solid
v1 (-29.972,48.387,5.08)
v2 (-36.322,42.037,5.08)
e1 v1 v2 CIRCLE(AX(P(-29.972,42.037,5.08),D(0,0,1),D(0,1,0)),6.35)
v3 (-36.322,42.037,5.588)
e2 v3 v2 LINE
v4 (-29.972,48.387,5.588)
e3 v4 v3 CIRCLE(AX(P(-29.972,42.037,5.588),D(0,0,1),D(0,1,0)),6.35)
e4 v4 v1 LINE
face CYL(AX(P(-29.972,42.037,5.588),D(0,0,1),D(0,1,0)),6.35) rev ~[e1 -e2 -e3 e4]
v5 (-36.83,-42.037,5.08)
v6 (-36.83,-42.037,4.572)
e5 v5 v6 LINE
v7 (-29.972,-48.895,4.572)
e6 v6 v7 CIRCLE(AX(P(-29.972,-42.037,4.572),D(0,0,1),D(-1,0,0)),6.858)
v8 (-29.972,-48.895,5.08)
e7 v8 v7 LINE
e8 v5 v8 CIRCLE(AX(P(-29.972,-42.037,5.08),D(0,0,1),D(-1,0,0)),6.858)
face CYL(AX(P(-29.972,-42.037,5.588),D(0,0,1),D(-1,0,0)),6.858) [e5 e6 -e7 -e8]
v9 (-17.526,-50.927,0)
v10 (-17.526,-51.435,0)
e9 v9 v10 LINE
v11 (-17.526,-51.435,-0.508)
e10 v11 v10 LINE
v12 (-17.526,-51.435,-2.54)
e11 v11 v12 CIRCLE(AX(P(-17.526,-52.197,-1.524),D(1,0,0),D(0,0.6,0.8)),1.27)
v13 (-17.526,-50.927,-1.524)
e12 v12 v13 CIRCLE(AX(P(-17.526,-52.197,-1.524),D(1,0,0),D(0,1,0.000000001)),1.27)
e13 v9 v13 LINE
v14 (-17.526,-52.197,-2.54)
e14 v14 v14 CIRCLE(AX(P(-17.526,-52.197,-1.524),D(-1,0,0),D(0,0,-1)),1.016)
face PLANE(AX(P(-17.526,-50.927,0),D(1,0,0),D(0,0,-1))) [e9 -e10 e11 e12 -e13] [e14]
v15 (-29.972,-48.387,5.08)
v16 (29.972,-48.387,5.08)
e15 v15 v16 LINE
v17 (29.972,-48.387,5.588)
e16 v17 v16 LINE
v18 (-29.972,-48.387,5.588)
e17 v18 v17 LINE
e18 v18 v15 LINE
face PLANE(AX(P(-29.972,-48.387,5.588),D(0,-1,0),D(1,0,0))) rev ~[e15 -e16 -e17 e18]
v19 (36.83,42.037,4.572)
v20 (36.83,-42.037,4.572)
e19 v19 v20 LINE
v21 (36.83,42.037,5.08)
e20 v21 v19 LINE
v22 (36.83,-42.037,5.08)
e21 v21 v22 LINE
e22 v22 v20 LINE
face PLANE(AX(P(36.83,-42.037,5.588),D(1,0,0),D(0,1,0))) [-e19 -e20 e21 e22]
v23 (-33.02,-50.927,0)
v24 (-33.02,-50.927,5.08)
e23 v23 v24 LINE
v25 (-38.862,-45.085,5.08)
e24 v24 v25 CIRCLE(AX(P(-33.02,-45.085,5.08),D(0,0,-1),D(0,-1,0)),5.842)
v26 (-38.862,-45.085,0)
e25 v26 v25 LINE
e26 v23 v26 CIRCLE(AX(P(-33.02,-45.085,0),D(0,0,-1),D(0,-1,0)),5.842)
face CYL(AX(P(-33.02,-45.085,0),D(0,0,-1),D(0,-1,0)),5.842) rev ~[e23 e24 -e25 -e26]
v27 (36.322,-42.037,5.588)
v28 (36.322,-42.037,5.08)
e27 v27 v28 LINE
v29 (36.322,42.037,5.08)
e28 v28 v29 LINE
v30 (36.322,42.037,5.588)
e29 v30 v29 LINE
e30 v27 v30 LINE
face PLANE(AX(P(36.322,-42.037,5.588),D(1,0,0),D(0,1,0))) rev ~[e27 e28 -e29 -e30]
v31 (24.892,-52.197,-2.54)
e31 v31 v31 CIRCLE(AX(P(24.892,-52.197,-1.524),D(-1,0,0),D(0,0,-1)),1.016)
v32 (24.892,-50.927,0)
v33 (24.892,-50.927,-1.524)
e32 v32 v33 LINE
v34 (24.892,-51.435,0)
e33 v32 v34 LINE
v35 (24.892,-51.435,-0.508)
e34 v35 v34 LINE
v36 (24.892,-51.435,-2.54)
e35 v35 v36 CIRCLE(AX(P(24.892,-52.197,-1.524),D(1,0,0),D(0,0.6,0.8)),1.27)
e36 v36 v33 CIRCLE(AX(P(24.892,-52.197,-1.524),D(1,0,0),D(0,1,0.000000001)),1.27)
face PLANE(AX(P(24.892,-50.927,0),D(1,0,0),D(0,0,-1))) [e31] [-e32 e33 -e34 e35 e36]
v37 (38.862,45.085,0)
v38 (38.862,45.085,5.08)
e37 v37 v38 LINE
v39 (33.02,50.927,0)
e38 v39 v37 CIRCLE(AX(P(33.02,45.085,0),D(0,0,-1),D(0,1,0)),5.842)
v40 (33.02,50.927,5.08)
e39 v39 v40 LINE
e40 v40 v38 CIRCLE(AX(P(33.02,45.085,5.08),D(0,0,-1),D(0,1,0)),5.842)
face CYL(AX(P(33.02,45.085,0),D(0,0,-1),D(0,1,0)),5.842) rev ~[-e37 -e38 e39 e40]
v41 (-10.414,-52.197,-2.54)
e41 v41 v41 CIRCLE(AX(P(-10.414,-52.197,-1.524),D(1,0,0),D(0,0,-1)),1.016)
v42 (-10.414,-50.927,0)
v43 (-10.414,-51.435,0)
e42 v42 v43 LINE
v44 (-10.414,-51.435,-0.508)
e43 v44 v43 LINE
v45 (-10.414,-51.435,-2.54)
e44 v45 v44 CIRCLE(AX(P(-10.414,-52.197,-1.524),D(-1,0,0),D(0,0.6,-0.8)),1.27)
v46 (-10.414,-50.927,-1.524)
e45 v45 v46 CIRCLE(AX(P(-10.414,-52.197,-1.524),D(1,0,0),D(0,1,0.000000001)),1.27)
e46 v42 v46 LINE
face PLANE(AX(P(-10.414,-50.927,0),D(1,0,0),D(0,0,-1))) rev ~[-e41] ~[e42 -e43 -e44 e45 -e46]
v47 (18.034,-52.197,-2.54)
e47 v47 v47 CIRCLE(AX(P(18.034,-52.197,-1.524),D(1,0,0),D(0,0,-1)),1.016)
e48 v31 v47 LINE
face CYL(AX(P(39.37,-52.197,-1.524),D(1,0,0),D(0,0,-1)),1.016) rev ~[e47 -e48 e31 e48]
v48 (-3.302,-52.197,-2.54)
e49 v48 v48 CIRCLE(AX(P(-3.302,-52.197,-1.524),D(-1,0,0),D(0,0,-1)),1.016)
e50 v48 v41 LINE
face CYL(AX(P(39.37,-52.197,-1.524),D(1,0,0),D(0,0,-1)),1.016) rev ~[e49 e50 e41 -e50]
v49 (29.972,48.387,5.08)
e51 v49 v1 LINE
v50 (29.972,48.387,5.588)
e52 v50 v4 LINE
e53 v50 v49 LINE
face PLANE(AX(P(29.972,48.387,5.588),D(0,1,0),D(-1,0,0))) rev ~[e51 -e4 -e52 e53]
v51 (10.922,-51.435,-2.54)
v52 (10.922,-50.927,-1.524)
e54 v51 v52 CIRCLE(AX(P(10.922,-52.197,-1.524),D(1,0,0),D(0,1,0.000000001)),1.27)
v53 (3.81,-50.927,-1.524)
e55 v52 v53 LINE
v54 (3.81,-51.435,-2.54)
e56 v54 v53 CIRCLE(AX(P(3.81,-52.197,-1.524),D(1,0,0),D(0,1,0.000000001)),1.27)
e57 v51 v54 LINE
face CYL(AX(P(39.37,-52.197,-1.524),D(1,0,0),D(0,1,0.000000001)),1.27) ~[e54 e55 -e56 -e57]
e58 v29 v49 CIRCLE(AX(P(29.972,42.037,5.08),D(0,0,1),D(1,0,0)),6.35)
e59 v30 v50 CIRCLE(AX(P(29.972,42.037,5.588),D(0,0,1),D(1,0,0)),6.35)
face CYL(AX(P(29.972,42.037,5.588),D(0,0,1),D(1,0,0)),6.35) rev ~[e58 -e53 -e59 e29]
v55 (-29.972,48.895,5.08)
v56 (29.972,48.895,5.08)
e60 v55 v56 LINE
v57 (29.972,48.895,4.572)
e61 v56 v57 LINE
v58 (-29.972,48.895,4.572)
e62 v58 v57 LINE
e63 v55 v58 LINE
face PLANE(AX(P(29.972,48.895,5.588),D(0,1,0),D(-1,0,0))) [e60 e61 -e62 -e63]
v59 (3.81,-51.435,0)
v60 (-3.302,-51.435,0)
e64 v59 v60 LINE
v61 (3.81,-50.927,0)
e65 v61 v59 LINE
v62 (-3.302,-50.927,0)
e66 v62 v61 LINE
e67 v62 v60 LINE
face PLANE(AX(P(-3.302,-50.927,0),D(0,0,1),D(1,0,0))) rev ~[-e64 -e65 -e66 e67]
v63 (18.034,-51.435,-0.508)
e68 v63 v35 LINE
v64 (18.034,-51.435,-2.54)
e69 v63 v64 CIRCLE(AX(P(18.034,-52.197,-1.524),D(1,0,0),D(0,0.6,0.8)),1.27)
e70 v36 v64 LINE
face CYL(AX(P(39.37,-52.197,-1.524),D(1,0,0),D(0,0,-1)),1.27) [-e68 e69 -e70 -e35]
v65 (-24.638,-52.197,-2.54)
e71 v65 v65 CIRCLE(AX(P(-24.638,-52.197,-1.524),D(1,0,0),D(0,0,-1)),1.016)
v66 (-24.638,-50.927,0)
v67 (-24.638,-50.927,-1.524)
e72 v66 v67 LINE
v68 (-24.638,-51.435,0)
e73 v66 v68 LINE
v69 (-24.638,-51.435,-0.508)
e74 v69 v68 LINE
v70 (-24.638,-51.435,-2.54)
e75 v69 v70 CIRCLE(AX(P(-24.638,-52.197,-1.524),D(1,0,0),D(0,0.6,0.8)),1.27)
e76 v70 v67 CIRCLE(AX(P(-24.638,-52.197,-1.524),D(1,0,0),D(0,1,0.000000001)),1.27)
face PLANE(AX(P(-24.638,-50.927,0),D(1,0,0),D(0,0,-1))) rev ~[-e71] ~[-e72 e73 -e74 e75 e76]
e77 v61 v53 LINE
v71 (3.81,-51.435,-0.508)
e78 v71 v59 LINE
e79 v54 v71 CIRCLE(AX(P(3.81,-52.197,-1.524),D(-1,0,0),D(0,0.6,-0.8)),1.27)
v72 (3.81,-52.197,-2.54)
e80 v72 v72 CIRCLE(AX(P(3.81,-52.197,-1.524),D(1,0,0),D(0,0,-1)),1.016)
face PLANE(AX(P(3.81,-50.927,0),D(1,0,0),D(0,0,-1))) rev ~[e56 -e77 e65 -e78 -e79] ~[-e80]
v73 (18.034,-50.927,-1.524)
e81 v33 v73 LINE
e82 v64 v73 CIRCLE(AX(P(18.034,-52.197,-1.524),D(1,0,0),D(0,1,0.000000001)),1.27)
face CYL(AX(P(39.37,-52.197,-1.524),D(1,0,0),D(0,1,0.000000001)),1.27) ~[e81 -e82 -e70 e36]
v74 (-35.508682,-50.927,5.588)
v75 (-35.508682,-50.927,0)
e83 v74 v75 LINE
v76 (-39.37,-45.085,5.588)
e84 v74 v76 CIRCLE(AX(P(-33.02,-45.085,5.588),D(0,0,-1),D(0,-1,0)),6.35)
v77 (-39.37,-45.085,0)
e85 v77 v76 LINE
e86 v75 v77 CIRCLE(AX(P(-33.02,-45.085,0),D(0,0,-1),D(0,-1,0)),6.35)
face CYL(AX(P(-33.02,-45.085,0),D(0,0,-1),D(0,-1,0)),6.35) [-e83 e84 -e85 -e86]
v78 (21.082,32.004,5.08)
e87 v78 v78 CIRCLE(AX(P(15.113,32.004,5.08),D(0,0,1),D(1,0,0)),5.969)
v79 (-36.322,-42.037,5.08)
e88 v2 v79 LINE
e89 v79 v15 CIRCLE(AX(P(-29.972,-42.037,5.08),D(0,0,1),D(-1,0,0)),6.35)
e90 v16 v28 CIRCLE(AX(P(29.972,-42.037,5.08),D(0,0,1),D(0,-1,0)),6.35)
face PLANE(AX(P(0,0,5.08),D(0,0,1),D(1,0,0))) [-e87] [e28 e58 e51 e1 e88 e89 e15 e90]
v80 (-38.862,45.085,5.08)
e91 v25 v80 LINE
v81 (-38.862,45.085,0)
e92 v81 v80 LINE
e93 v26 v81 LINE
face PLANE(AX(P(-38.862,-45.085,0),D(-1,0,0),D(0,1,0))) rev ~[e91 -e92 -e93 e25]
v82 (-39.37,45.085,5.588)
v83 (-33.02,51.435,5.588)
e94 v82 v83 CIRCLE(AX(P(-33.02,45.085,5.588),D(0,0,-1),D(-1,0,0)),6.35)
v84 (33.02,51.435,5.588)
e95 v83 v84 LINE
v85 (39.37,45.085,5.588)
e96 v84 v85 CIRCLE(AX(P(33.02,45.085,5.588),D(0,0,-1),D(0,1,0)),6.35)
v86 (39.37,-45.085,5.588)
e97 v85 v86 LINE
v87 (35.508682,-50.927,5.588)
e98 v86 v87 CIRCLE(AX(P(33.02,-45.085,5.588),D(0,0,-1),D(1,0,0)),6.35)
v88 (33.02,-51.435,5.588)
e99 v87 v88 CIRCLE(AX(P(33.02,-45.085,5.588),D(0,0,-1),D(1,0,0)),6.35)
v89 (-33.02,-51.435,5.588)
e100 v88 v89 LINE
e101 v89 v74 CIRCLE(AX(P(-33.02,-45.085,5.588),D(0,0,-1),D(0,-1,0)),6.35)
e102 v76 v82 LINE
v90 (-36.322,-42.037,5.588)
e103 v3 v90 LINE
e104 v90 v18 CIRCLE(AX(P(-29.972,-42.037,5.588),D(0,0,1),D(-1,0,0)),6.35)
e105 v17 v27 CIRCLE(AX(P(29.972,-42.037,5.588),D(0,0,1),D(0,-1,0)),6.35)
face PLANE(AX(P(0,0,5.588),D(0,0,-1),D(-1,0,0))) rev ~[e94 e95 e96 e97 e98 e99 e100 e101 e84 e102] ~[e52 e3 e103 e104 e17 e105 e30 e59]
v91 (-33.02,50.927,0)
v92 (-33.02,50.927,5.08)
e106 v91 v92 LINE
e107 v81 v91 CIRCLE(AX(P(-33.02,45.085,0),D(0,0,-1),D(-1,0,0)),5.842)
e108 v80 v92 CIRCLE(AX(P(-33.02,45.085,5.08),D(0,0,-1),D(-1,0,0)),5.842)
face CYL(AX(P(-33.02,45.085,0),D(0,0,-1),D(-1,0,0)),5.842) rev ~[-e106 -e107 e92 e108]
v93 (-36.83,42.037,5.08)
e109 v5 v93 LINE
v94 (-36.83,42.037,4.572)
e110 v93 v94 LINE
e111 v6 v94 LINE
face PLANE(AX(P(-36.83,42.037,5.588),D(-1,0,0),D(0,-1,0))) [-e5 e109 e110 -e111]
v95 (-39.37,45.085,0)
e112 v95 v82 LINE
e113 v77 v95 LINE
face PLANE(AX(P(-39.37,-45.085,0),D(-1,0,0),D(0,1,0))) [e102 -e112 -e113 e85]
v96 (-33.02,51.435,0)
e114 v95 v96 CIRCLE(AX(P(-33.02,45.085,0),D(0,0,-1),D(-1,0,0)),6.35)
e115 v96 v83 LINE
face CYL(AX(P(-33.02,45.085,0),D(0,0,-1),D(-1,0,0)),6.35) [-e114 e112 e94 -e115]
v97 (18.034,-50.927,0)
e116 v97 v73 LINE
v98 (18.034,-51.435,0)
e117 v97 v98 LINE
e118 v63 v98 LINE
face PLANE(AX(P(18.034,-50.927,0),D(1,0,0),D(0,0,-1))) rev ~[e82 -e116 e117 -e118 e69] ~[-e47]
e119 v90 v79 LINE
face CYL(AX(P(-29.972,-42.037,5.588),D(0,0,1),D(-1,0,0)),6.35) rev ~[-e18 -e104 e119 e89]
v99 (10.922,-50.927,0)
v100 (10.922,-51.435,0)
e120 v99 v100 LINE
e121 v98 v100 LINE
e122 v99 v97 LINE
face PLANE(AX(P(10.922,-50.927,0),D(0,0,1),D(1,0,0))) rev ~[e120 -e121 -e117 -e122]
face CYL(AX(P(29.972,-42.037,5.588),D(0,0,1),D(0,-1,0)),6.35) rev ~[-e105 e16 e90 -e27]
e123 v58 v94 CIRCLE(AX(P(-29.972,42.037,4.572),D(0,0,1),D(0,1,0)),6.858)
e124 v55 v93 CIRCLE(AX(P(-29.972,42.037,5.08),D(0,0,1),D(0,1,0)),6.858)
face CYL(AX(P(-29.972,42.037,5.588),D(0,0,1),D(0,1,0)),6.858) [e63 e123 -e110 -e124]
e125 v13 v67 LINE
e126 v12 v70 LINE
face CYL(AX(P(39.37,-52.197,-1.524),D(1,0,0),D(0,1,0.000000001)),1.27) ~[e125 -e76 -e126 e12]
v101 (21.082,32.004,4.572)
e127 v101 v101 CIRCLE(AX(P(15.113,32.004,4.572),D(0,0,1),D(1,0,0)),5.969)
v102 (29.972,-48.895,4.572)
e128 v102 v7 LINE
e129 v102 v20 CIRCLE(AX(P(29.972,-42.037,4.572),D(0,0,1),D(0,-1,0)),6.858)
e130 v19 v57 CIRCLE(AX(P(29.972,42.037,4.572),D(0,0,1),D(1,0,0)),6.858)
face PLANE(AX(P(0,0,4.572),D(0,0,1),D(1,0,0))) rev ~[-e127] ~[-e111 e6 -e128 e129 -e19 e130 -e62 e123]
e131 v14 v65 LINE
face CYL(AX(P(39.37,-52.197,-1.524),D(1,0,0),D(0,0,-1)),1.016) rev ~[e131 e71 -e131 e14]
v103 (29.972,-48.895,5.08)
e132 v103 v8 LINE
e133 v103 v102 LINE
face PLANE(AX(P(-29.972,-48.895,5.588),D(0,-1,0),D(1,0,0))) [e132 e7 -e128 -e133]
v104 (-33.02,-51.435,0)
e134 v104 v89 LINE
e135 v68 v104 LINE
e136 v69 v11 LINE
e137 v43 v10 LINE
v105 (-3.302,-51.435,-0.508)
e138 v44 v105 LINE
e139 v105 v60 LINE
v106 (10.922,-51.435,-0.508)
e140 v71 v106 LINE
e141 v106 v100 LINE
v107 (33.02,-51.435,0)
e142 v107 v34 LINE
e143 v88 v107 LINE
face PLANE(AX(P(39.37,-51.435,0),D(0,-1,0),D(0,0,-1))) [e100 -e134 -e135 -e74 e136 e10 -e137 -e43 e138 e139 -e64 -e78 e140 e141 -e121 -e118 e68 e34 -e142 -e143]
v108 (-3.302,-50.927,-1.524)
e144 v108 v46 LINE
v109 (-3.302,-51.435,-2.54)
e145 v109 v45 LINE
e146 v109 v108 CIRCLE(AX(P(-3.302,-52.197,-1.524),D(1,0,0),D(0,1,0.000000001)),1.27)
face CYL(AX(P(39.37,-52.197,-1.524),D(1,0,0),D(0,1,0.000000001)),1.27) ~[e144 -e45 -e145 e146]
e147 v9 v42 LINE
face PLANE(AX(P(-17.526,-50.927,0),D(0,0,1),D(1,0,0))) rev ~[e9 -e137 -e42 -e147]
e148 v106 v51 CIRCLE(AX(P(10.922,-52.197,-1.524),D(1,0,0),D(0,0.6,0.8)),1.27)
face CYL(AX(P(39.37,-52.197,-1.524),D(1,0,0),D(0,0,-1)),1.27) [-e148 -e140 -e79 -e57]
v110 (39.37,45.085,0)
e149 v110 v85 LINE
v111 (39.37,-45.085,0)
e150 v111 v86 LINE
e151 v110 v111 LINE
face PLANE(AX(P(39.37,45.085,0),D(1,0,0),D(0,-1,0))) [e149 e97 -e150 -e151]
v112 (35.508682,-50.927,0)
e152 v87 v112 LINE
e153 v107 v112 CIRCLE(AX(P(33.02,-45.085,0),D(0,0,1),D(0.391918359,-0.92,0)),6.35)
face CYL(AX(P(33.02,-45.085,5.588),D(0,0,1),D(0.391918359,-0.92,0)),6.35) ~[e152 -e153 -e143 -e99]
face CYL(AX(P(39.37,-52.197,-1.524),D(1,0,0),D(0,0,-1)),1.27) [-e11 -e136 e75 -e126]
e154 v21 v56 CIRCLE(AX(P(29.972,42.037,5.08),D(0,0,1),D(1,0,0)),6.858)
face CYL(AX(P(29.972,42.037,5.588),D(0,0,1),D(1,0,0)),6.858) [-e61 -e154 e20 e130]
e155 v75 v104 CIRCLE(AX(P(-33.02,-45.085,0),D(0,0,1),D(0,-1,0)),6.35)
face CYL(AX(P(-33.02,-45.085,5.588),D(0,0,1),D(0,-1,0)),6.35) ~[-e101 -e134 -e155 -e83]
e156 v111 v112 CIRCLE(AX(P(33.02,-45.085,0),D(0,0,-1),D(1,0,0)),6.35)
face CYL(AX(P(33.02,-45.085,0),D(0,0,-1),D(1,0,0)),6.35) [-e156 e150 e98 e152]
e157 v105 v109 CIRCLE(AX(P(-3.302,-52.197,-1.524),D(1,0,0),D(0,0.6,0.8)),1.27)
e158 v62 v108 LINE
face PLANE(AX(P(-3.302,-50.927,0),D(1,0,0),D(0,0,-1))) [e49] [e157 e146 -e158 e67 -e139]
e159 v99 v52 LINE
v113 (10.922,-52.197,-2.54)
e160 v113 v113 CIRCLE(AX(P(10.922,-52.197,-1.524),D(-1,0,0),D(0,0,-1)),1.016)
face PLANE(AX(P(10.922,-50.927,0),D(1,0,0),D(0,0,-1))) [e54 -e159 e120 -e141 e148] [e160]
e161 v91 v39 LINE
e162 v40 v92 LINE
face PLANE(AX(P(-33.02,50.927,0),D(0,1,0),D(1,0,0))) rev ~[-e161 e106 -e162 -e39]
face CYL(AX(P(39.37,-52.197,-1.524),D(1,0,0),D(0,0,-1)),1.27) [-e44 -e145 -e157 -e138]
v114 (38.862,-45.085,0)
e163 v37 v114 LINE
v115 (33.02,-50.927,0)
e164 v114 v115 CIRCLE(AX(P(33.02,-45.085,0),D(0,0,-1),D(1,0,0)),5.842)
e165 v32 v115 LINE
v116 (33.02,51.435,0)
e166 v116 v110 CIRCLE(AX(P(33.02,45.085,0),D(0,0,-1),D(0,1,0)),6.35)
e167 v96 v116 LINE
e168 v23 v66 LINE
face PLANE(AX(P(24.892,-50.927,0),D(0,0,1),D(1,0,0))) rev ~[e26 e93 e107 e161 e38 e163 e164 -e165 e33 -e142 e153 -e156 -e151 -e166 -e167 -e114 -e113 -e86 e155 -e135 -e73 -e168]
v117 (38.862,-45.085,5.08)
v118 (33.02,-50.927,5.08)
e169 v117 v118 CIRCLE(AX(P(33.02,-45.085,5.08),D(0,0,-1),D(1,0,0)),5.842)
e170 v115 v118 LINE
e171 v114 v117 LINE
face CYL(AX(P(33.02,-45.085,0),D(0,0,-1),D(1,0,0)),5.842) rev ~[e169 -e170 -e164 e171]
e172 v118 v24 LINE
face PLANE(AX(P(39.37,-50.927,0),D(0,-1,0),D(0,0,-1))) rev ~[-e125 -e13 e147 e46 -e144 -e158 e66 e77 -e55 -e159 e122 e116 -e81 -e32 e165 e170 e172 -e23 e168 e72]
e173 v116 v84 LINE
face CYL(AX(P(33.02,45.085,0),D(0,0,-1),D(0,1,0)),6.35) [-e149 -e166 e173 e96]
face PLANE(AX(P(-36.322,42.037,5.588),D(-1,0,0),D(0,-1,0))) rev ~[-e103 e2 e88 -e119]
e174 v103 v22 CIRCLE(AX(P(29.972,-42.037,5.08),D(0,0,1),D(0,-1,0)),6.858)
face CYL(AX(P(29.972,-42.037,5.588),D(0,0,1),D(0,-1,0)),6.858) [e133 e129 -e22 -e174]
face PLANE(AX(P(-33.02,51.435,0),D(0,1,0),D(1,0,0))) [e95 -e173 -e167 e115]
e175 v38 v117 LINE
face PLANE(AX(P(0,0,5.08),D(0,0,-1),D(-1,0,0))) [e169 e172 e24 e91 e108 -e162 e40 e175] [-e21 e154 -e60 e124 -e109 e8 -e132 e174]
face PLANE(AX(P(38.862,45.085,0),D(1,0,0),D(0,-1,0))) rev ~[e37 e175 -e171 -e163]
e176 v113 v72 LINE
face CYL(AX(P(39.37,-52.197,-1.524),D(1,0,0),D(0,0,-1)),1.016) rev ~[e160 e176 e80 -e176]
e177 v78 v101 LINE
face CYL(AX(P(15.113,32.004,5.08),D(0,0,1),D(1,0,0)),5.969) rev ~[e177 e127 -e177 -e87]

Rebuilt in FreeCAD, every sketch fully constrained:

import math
import FreeCAD as App
import Part
import Sketcher
Q = App.Units.Quantity


def faces_at(feature, points):
    """Names of the faces that lie closest to the given points."""
    faces = feature.Shape.Faces
    near = lambda p: min(range(len(faces)), key=lambda i: faces[i].distToShape(Part.Vertex(*p))[0])
    return sorted({f"Face{near(p) + 1}" for p in points})

doc = App.newDocument("Part")
body = doc.addObject("PartDesign::Body", "Body")

sketch1 = doc.addObject("Sketcher::SketchObject", "Sketch")
body.addObject(sketch1)
sketch1.AttachmentSupport = (doc.XY_Plane, [""])
sketch1.MapMode = "FlatFace"
sketch1.addGeometry(Part.LineSegment(App.Vector(33, 51, 0), App.Vector(-33, 51, 0)), False)
sketch1.addGeometry(Part.ArcOfCircle(Part.Circle(App.Vector(-33, 45, 0), App.Vector(0, 0, 1), 6), math.radians(90), math.radians(180)), False)
sketch1.addGeometry(Part.LineSegment(App.Vector(-39, 45, 0), App.Vector(-39, -45, 0)), False)
sketch1.addGeometry(Part.ArcOfCircle(Part.Circle(App.Vector(-33, -45, 0), App.Vector(0, 0, 1), 6), math.radians(180), math.radians(270)), False)
sketch1.addGeometry(Part.LineSegment(App.Vector(-33, -51, 0), App.Vector(33, -51, 0)), False)
sketch1.addGeometry(Part.ArcOfCircle(Part.Circle(App.Vector(33, -45, 0), App.Vector(0, 0, 1), 6), math.radians(-90), math.radians(0)), False)
sketch1.addGeometry(Part.LineSegment(App.Vector(39, -45, 0), App.Vector(39, 45, 0)), False)
sketch1.addGeometry(Part.ArcOfCircle(Part.Circle(App.Vector(33, 45, 0), App.Vector(0, 0, 1), 6), math.radians(0), math.radians(90)), False)
sketch1.addConstraint(Sketcher.Constraint("Tangent", 0, 2, 1, 1))
sketch1.addConstraint(Sketcher.Constraint("Tangent", 1, 2, 2, 1))
sketch1.addConstraint(Sketcher.Constraint("Tangent", 2, 2, 3, 1))
sketch1.addConstraint(Sketcher.Constraint("Tangent", 3, 2, 4, 1))
sketch1.addConstraint(Sketcher.Constraint("Tangent", 4, 2, 5, 1))
sketch1.addConstraint(Sketcher.Constraint("Tangent", 5, 2, 6, 1))
sketch1.addConstraint(Sketcher.Constraint("Tangent", 6, 2, 7, 1))
sketch1.addConstraint(Sketcher.Constraint("Tangent", 7, 2, 0, 1))
sketch1.addConstraint(Sketcher.Constraint("Horizontal", 0))
sketch1.addConstraint(Sketcher.Constraint("Vertical", 2))
sketch1.addConstraint(Sketcher.Constraint("Horizontal", 4))
sketch1.addConstraint(Sketcher.Constraint("Vertical", 6))
sketch1.addConstraint(Sketcher.Constraint("Equal", 1, 3))
sketch1.addConstraint(Sketcher.Constraint("Equal", 3, 5))
sketch1.addConstraint(Sketcher.Constraint("Equal", 5, 7))
sketch1.addConstraint(Sketcher.Constraint("Symmetric", 1, 3, 5, 3, -1, 1))
sketch1.addConstraint(Sketcher.Constraint("Radius", 1, Q("0.25 in")))
sketch1.addConstraint(Sketcher.Constraint("DistanceX", 0, 2, 0, 1, Q("2.6 in")))
sketch1.addConstraint(Sketcher.Constraint("DistanceY", 2, 2, 2, 1, Q("3.55 in")))
pad1 = doc.addObject("PartDesign::Pad", "Pad")
body.addObject(pad1)
pad1.Profile = sketch1
pad1.Length = Q("0.22 in")

sketch2 = doc.addObject("Sketcher::SketchObject", "Sketch001")
body.addObject(sketch2)
sketch2.AttachmentSupport = (doc.XY_Plane, [""])
sketch2.MapMode = "FlatFace"
sketch2.AttachmentOffset = App.Placement(App.Vector(0, 0, 0.22 * 25.4), App.Rotation())
sketch2.addGeometry(Part.LineSegment(App.Vector(-30, -48, 0), App.Vector(30, -48, 0)), False)
sketch2.addGeometry(Part.ArcOfCircle(Part.Circle(App.Vector(30, -42, 0), App.Vector(0, 0, 1), 6), math.radians(-90), math.radians(0)), False)
sketch2.addGeometry(Part.LineSegment(App.Vector(36, -42, 0), App.Vector(36, 42, 0)), False)
sketch2.addGeometry(Part.ArcOfCircle(Part.Circle(App.Vector(30, 42, 0), App.Vector(0, 0, 1), 6), math.radians(0), math.radians(90)), False)
sketch2.addGeometry(Part.LineSegment(App.Vector(30, 48, 0), App.Vector(-30, 48, 0)), False)
sketch2.addGeometry(Part.ArcOfCircle(Part.Circle(App.Vector(-30, 42, 0), App.Vector(0, 0, 1), 6), math.radians(90), math.radians(180)), False)
sketch2.addGeometry(Part.LineSegment(App.Vector(-36, 42, 0), App.Vector(-36, -42, 0)), False)
sketch2.addGeometry(Part.ArcOfCircle(Part.Circle(App.Vector(-30, -42, 0), App.Vector(0, 0, 1), 6), math.radians(180), math.radians(270)), False)
sketch2.addConstraint(Sketcher.Constraint("Tangent", 0, 2, 1, 1))
sketch2.addConstraint(Sketcher.Constraint("Tangent", 1, 2, 2, 1))
sketch2.addConstraint(Sketcher.Constraint("Tangent", 2, 2, 3, 1))
sketch2.addConstraint(Sketcher.Constraint("Tangent", 3, 2, 4, 1))
sketch2.addConstraint(Sketcher.Constraint("Tangent", 4, 2, 5, 1))
sketch2.addConstraint(Sketcher.Constraint("Tangent", 5, 2, 6, 1))
sketch2.addConstraint(Sketcher.Constraint("Tangent", 6, 2, 7, 1))
sketch2.addConstraint(Sketcher.Constraint("Tangent", 7, 2, 0, 1))
sketch2.addConstraint(Sketcher.Constraint("Horizontal", 0))
sketch2.addConstraint(Sketcher.Constraint("Vertical", 2))
sketch2.addConstraint(Sketcher.Constraint("Horizontal", 4))
sketch2.addConstraint(Sketcher.Constraint("Vertical", 6))
sketch2.addConstraint(Sketcher.Constraint("Equal", 1, 3))
sketch2.addConstraint(Sketcher.Constraint("Equal", 3, 5))
sketch2.addConstraint(Sketcher.Constraint("Equal", 5, 7))
sketch2.addConstraint(Sketcher.Constraint("Symmetric", 1, 3, 5, 3, -1, 1))
sketch2.addConstraint(Sketcher.Constraint("Radius", 1, Q("0.25 in")))
sketch2.addConstraint(Sketcher.Constraint("DistanceX", 0, 1, 0, 2, Q("2.36 in")))
sketch2.addConstraint(Sketcher.Constraint("DistanceY", 2, 1, 2, 2, Q("3.31 in")))
pocket1 = doc.addObject("PartDesign::Pocket", "Pocket")
body.addObject(pocket1)
pocket1.Profile = sketch2
pocket1.Length = Q("0.02 in")
doc.recompute()

thickness = doc.addObject("PartDesign::Thickness", "Thickness")
body.addObject(thickness)
thickness.Base = (pocket1, faces_at(pocket1, [(0, 0, 0)]))
thickness.Value = Q("0.02 in")
thickness.Reversed = True
thickness.Join = "Intersection"

sketch3 = doc.addObject("Sketcher::SketchObject", "Sketch002")
body.addObject(sketch3)
sketch3.AttachmentSupport = (doc.XY_Plane, [""])
sketch3.MapMode = "FlatFace"
sketch3.AttachmentOffset = App.Placement(App.Vector(0, 0, 0.2 * 25.4), App.Rotation())
sketch3.addGeometry(Part.Circle(App.Vector(15, 32, 0), App.Vector(0, 0, 1), 6), False)
sketch3.addConstraint(Sketcher.Constraint("Diameter", 0, Q("0.47 in")))
sketch3.addConstraint(Sketcher.Constraint("DistanceY", -1, 1, 0, 3, Q("1.26 in")))
sketch3.addConstraint(Sketcher.Constraint("DistanceX", -1, 1, 0, 3, Q("0.595 in")))
pocket2 = doc.addObject("PartDesign::Pocket", "Pocket001")
body.addObject(pocket2)
pocket2.Profile = sketch3
pocket2.Length = Q("0.02 in")

sketch4 = doc.addObject("Sketcher::SketchObject", "Sketch003")
body.addObject(sketch4)
sketch4.AttachmentSupport = (doc.YZ_Plane, [""])
sketch4.MapMode = "FlatFace"
sketch4.AttachmentOffset = App.Placement(App.Vector(0, 0, 1.55 * 25.4), App.Rotation())
sketch4.addGeometry(Part.LineSegment(App.Vector(-50.9, 0, 0), App.Vector(-51.4, 0, 0)), False)
sketch4.addGeometry(Part.LineSegment(App.Vector(-51.4, 0, 0), App.Vector(-51.4, -2.5, 0)), False)
sketch4.addGeometry(Part.LineSegment(App.Vector(-51.4, -2.5, 0), App.Vector(-50.9, -2.5, 0)), False)
sketch4.addGeometry(Part.LineSegment(App.Vector(-50.9, -2.5, 0), App.Vector(-50.9, 0, 0)), False)
sketch4.addConstraint(Sketcher.Constraint("Coincident", 0, 2, 1, 1))
sketch4.addConstraint(Sketcher.Constraint("Coincident", 1, 2, 2, 1))
sketch4.addConstraint(Sketcher.Constraint("Coincident", 2, 2, 3, 1))
sketch4.addConstraint(Sketcher.Constraint("Coincident", 3, 2, 0, 1))
sketch4.addConstraint(Sketcher.Constraint("Horizontal", 0))
sketch4.addConstraint(Sketcher.Constraint("Vertical", 1))
sketch4.addConstraint(Sketcher.Constraint("Horizontal", 2))
sketch4.addConstraint(Sketcher.Constraint("Vertical", 3))
sketch4.addConstraint(Sketcher.Constraint("PointOnObject", 0, 2, -1))
sketch4.addConstraint(Sketcher.Constraint("DistanceY", 1, 2, 1, 1, Q("0.1 in")))
sketch4.addConstraint(Sketcher.Constraint("DistanceX", 0, 2, 0, 1, Q("0.02 in")))
sketch4.addConstraint(Sketcher.Constraint("DistanceX", 0, 2, -1, 1, Q("2.025 in")))
pad2 = doc.addObject("PartDesign::Pad", "Pad001")
body.addObject(pad2)
pad2.Profile = sketch4
pad2.Length = Q("3.02 in")
pad2.Reversed = True

sketch5 = doc.addObject("Sketcher::SketchObject", "Sketch004")
body.addObject(sketch5)
sketch5.AttachmentSupport = (doc.YZ_Plane, [""])
sketch5.MapMode = "FlatFace"
sketch5.AttachmentOffset = App.Placement(App.Vector(0, 0, 1.55 * 25.4), App.Rotation())
sketch5.addGeometry(Part.Circle(App.Vector(-52.2, -1.5, 0), App.Vector(0, 0, 1), 1.3), False)
sketch5.addConstraint(Sketcher.Constraint("Diameter", 0, Q("0.1 in")))
sketch5.addConstraint(Sketcher.Constraint("DistanceY", 0, 3, -1, 1, Q("0.06 in")))
sketch5.addConstraint(Sketcher.Constraint("DistanceX", 0, 3, -1, 1, Q("2.055 in")))
pad3 = doc.addObject("PartDesign::Pad", "Pad002")
body.addObject(pad3)
pad3.Profile = sketch5
pad3.Length = Q("3.02 in")
pad3.Reversed = True

sketch6 = doc.addObject("Sketcher::SketchObject", "Sketch005")
body.addObject(sketch6)
sketch6.AttachmentSupport = (doc.YZ_Plane, [""])
sketch6.MapMode = "FlatFace"
sketch6.AttachmentOffset = App.Placement(App.Vector(0, 0, 1.55 * 25.4), App.Rotation())
sketch6.addGeometry(Part.LineSegment(App.Vector(-50.9, -2.5, 0), App.Vector(-50.9, -1.5, 0)), False)
sketch6.addGeometry(Part.ArcOfCircle(Part.Circle(App.Vector(-52.2, -1.5, 0), App.Vector(0, 0, 1), 1.3), math.radians(-53), math.radians(0)), False)
sketch6.addGeometry(Part.LineSegment(App.Vector(-51.4, -2.5, 0), App.Vector(-50.9, -2.5, 0)), False)
sketch6.addConstraint(Sketcher.Constraint("Tangent", 0, 2, 1, 2))
sketch6.addConstraint(Sketcher.Constraint("Coincident", 1, 1, 2, 1))
sketch6.addConstraint(Sketcher.Constraint("Coincident", 2, 2, 0, 1))
sketch6.addConstraint(Sketcher.Constraint("Vertical", 0))
sketch6.addConstraint(Sketcher.Constraint("Horizontal", 2))
sketch6.addConstraint(Sketcher.Constraint("Radius", 1, Q("0.05 in")))
sketch6.addConstraint(Sketcher.Constraint("DistanceX", 2, 1, 2, 2, Q("0.02 in")))
sketch6.addConstraint(Sketcher.Constraint("DistanceY", 1, 1, -1, 1, Q("0.1 in")))
sketch6.addConstraint(Sketcher.Constraint("DistanceX", 1, 3, -1, 1, Q("2.055 in")))
pocket3 = doc.addObject("PartDesign::Pocket", "Pocket002")
body.addObject(pocket3)
pocket3.Profile = sketch6
pocket3.Type = "ThroughAll"

sketch7 = doc.addObject("Sketcher::SketchObject", "Sketch006")
body.addObject(sketch7)
sketch7.AttachmentSupport = (doc.YZ_Plane, [""])
sketch7.MapMode = "FlatFace"
sketch7.AttachmentOffset = App.Placement(App.Vector(0, 0, 1.55 * 25.4), App.Rotation())
sketch7.addGeometry(Part.Circle(App.Vector(-52.2, -1.5, 0), App.Vector(0, 0, 1), 1), False)
sketch7.addConstraint(Sketcher.Constraint("Diameter", 0, Q("0.08 in")))
sketch7.addConstraint(Sketcher.Constraint("DistanceY", 0, 3, -1, 1, Q("0.06 in")))
sketch7.addConstraint(Sketcher.Constraint("DistanceX", 0, 3, -1, 1, Q("2.055 in")))
pocket4 = doc.addObject("PartDesign::Pocket", "Pocket003")
body.addObject(pocket4)
pocket4.Profile = sketch7
pocket4.Type = "ThroughAll"

sketch8 = doc.addObject("Sketcher::SketchObject", "Sketch007")
body.addObject(sketch8)
sketch8.AttachmentSupport = (doc.XY_Plane, [""])
sketch8.MapMode = "FlatFace"
sketch8.AttachmentOffset = App.Placement(App.Vector(0, 0, 0.22 * 25.4), App.Rotation())
sketch8.addGeometry(Part.LineSegment(App.Vector(-17.5, -51.4, 0), App.Vector(-17.5, -53.5, 0)), False)
sketch8.addGeometry(Part.LineSegment(App.Vector(-17.5, -53.5, 0), App.Vector(-10.4, -53.5, 0)), False)
sketch8.addGeometry(Part.LineSegment(App.Vector(-10.4, -53.5, 0), App.Vector(-10.4, -51.4, 0)), False)
sketch8.addGeometry(Part.LineSegment(App.Vector(-10.4, -51.4, 0), App.Vector(-17.5, -51.4, 0)), False)
sketch8.addGeometry(Part.LineSegment(App.Vector(-3.3, -51.4, 0), App.Vector(-3.3, -53.5, 0)), False)
sketch8.addGeometry(Part.LineSegment(App.Vector(-3.3, -53.5, 0), App.Vector(3.8, -53.5, 0)), False)
sketch8.addGeometry(Part.LineSegment(App.Vector(3.8, -53.5, 0), App.Vector(3.8, -51.4, 0)), False)
sketch8.addGeometry(Part.LineSegment(App.Vector(3.8, -51.4, 0), App.Vector(-3.3, -51.4, 0)), False)
sketch8.addGeometry(Part.LineSegment(App.Vector(10.9, -51.4, 0), App.Vector(10.9, -53.5, 0)), False)
sketch8.addGeometry(Part.LineSegment(App.Vector(10.9, -53.5, 0), App.Vector(18, -53.5, 0)), False)
sketch8.addGeometry(Part.LineSegment(App.Vector(18, -53.5, 0), App.Vector(18, -51.4, 0)), False)
sketch8.addGeometry(Part.LineSegment(App.Vector(18, -51.4, 0), App.Vector(10.9, -51.4, 0)), False)
sketch8.addGeometry(Part.LineSegment(App.Vector(39.4, -54.5, 0), App.Vector(39.4, -50.9, 0)), False)
sketch8.addGeometry(Part.LineSegment(App.Vector(39.4, -50.9, 0), App.Vector(35.5, -50.9, 0)), False)
sketch8.addGeometry(Part.ArcOfCircle(Part.Circle(App.Vector(33, -45.1, 0), App.Vector(0, 0, 1), 6.3), math.radians(-90), math.radians(-67)), False)
sketch8.addGeometry(Part.LineSegment(App.Vector(33, -51.4, 0), App.Vector(24.9, -51.4, 0)), False)
sketch8.addGeometry(Part.LineSegment(App.Vector(24.9, -51.4, 0), App.Vector(24.9, -54.5, 0)), False)
sketch8.addGeometry(Part.LineSegment(App.Vector(24.9, -54.5, 0), App.Vector(39.4, -54.5, 0)), False)
sketch8.addGeometry(Part.LineSegment(App.Vector(-37.3, -53.5, 0), App.Vector(-24.6, -53.5, 0)), False)
sketch8.addGeometry(Part.LineSegment(App.Vector(-24.6, -53.5, 0), App.Vector(-24.6, -51.4, 0)), False)
sketch8.addGeometry(Part.LineSegment(App.Vector(-24.6, -51.4, 0), App.Vector(-33, -51.4, 0)), False)
sketch8.addGeometry(Part.ArcOfCircle(Part.Circle(App.Vector(-33, -45.1, 0), App.Vector(0, 0, 1), 6.3), math.radians(-113), math.radians(-90)), False)
sketch8.addGeometry(Part.LineSegment(App.Vector(-35.5, -50.9, 0), App.Vector(-37.3, -50.9, 0)), False)
sketch8.addGeometry(Part.LineSegment(App.Vector(-37.3, -50.9, 0), App.Vector(-37.3, -53.5, 0)), False)
sketch8.addConstraint(Sketcher.Constraint("Coincident", 0, 2, 1, 1))
sketch8.addConstraint(Sketcher.Constraint("Coincident", 1, 2, 2, 1))
sketch8.addConstraint(Sketcher.Constraint("Coincident", 2, 2, 3, 1))
sketch8.addConstraint(Sketcher.Constraint("Coincident", 3, 2, 0, 1))
sketch8.addConstraint(Sketcher.Constraint("Coincident", 4, 2, 5, 1))
sketch8.addConstraint(Sketcher.Constraint("Coincident", 5, 2, 6, 1))
sketch8.addConstraint(Sketcher.Constraint("Coincident", 6, 2, 7, 1))
sketch8.addConstraint(Sketcher.Constraint("Coincident", 7, 2, 4, 1))
sketch8.addConstraint(Sketcher.Constraint("Coincident", 8, 2, 9, 1))
sketch8.addConstraint(Sketcher.Constraint("Coincident", 9, 2, 10, 1))
sketch8.addConstraint(Sketcher.Constraint("Coincident", 10, 2, 11, 1))
sketch8.addConstraint(Sketcher.Constraint("Coincident", 11, 2, 8, 1))
sketch8.addConstraint(Sketcher.Constraint("Coincident", 12, 2, 13, 1))
sketch8.addConstraint(Sketcher.Constraint("Coincident", 13, 2, 14, 2))
sketch8.addConstraint(Sketcher.Constraint("Tangent", 14, 1, 15, 1))
sketch8.addConstraint(Sketcher.Constraint("Coincident", 15, 2, 16, 1))
sketch8.addConstraint(Sketcher.Constraint("Coincident", 16, 2, 17, 1))
sketch8.addConstraint(Sketcher.Constraint("Coincident", 17, 2, 12, 1))
sketch8.addConstraint(Sketcher.Constraint("Coincident", 18, 2, 19, 1))
sketch8.addConstraint(Sketcher.Constraint("Coincident", 19, 2, 20, 1))
sketch8.addConstraint(Sketcher.Constraint("Tangent", 20, 2, 21, 2))
sketch8.addConstraint(Sketcher.Constraint("Coincident", 21, 1, 22, 1))
sketch8.addConstraint(Sketcher.Constraint("Coincident", 22, 2, 23, 1))
sketch8.addConstraint(Sketcher.Constraint("Coincident", 23, 2, 18, 1))
sketch8.addConstraint(Sketcher.Constraint("Vertical", 0))
sketch8.addConstraint(Sketcher.Constraint("Horizontal", 1))
sketch8.addConstraint(Sketcher.Constraint("Vertical", 2))
sketch8.addConstraint(Sketcher.Constraint("Horizontal", 3))
sketch8.addConstraint(Sketcher.Constraint("Vertical", 4))
sketch8.addConstraint(Sketcher.Constraint("Horizontal", 5))
sketch8.addConstraint(Sketcher.Constraint("Vertical", 6))
sketch8.addConstraint(Sketcher.Constraint("Horizontal", 7))
sketch8.addConstraint(Sketcher.Constraint("Vertical", 8))
sketch8.addConstraint(Sketcher.Constraint("Horizontal", 9))
sketch8.addConstraint(Sketcher.Constraint("Vertical", 10))
sketch8.addConstraint(Sketcher.Constraint("Horizontal", 11))
sketch8.addConstraint(Sketcher.Constraint("Vertical", 12))
sketch8.addConstraint(Sketcher.Constraint("Horizontal", 13))
sketch8.addConstraint(Sketcher.Constraint("Horizontal", 15))
sketch8.addConstraint(Sketcher.Constraint("Vertical", 16))
sketch8.addConstraint(Sketcher.Constraint("Horizontal", 17))
sketch8.addConstraint(Sketcher.Constraint("Horizontal", 18))
sketch8.addConstraint(Sketcher.Constraint("Vertical", 19))
sketch8.addConstraint(Sketcher.Constraint("Horizontal", 20))
sketch8.addConstraint(Sketcher.Constraint("Horizontal", 22))
sketch8.addConstraint(Sketcher.Constraint("Vertical", 23))
sketch8.addConstraint(Sketcher.Constraint("Equal", 14, 21))
sketch8.addConstraint(Sketcher.Constraint("Symmetric", 14, 3, 21, 3, -2))
sketch8.addConstraint(Sketcher.Constraint("Horizontal", 1, 2, 4, 2))
sketch8.addConstraint(Sketcher.Constraint("Horizontal", 3, 2, 6, 2))
sketch8.addConstraint(Sketcher.Constraint("Horizontal", 5, 2, 8, 2))
sketch8.addConstraint(Sketcher.Constraint("Horizontal", 7, 2, 10, 2))
sketch8.addConstraint(Sketcher.Constraint("Horizontal", 11, 2, 14, 1))
sketch8.addConstraint(Sketcher.Constraint("Horizontal", 9, 2, 18, 2))
sketch8.addConstraint(Sketcher.Constraint("Horizontal", 13, 2, 21, 1))
sketch8.addConstraint(Sketcher.Constraint("Equal", 3, 5))
sketch8.addConstraint(Sketcher.Constraint("Equal", 7, 9))
sketch8.addConstraint(Sketcher.Constraint("Radius", 14, Q("0.25 in")))
sketch8.addConstraint(Sketcher.Constraint("DistanceX", 18, 1, 18, 2, Q("0.5 in")))
sketch8.addConstraint(Sketcher.Constraint("DistanceY", 23, 2, 23, 1, Q("0.1 in")))
sketch8.addConstraint(Sketcher.Constraint("DistanceX", 1, 1, 1, 2, Q("0.28 in")))
sketch8.addConstraint(Sketcher.Constraint("DistanceX", 15, 2, 15, 1, Q("0.32 in")))
sketch8.addConstraint(Sketcher.Constraint("DistanceX", 17, 1, 17, 2, Q("0.57 in")))
sketch8.addConstraint(Sketcher.Constraint("DistanceX", 20, 2, 20, 1, Q("0.33 in")))
sketch8.addConstraint(Sketcher.Constraint("DistanceY", 0, 2, 0, 1, Q("0.08 in")))
sketch8.addConstraint(Sketcher.Constraint("DistanceX", -1, 1, 14, 3, Q("1.3 in")))
sketch8.addConstraint(Sketcher.Constraint("DistanceX", 0, 2, -1, 1, Q("0.69 in")))
sketch8.addConstraint(Sketcher.Constraint("DistanceX", 4, 2, -1, 1, Q("0.13 in")))
sketch8.addConstraint(Sketcher.Constraint("DistanceX", -1, 1, 8, 2, Q("0.43 in")))
sketch8.addConstraint(Sketcher.Constraint("DistanceY", 14, 3, -1, 1, Q("1.775 in")))
sketch8.addConstraint(Sketcher.Constraint("DistanceY", 12, 1, 12, 2, 3.534005))
pocket5 = doc.addObject("PartDesign::Pocket", "Pocket004")
body.addObject(pocket5)
pocket5.Profile = sketch8
pocket5.Type = "ThroughAll"

sketch9 = doc.addObject("Sketcher::SketchObject", "Sketch008")
body.addObject(sketch9)
sketch9.AttachmentSupport = (doc.XZ_Plane, [""])
sketch9.MapMode = "FlatFace"
sketch9.AttachmentOffset = App.Placement(App.Vector(0, 0, 2.005 * 25.4), App.Rotation())
sketch9.addGeometry(Part.LineSegment(App.Vector(24.9, -2.5, 0), App.Vector(24.9, 0, 0)), False)
sketch9.addGeometry(Part.LineSegment(App.Vector(24.9, 0, 0), App.Vector(35.5, 0, 0)), False)
sketch9.addGeometry(Part.LineSegment(App.Vector(35.5, 0, 0), App.Vector(35.5, -2.5, 0)), False)
sketch9.addGeometry(Part.LineSegment(App.Vector(35.5, -2.5, 0), App.Vector(24.9, -2.5, 0)), False)
sketch9.addGeometry(Part.LineSegment(App.Vector(-35.5, -2.5, 0), App.Vector(-35.5, 0, 0)), False)
sketch9.addGeometry(Part.LineSegment(App.Vector(-35.5, 0, 0), App.Vector(-24.6, 0, 0)), False)
sketch9.addGeometry(Part.LineSegment(App.Vector(-24.6, 0, 0), App.Vector(-24.6, -2.5, 0)), False)
sketch9.addGeometry(Part.LineSegment(App.Vector(-24.6, -2.5, 0), App.Vector(-35.5, -2.5, 0)), False)
sketch9.addConstraint(Sketcher.Constraint("Coincident", 0, 2, 1, 1))
sketch9.addConstraint(Sketcher.Constraint("Coincident", 1, 2, 2, 1))
sketch9.addConstraint(Sketcher.Constraint("Coincident", 2, 2, 3, 1))
sketch9.addConstraint(Sketcher.Constraint("Coincident", 3, 2, 0, 1))
sketch9.addConstraint(Sketcher.Constraint("Coincident", 4, 2, 5, 1))
sketch9.addConstraint(Sketcher.Constraint("Coincident", 5, 2, 6, 1))
sketch9.addConstraint(Sketcher.Constraint("Coincident", 6, 2, 7, 1))
sketch9.addConstraint(Sketcher.Constraint("Coincident", 7, 2, 4, 1))
sketch9.addConstraint(Sketcher.Constraint("Vertical", 0))
sketch9.addConstraint(Sketcher.Constraint("Horizontal", 1))
sketch9.addConstraint(Sketcher.Constraint("Vertical", 2))
sketch9.addConstraint(Sketcher.Constraint("Horizontal", 3))
sketch9.addConstraint(Sketcher.Constraint("Vertical", 4))
sketch9.addConstraint(Sketcher.Constraint("Horizontal", 5))
sketch9.addConstraint(Sketcher.Constraint("Vertical", 6))
sketch9.addConstraint(Sketcher.Constraint("Horizontal", 7))
sketch9.addConstraint(Sketcher.Constraint("Symmetric", 1, 2, 4, 2, -1, 1))
sketch9.addConstraint(Sketcher.Constraint("PointOnObject", 0, 2, -1))
sketch9.addConstraint(Sketcher.Constraint("Horizontal", 3, 2, 6, 2))
sketch9.addConstraint(Sketcher.Constraint("DistanceY", 0, 1, 0, 2, Q("0.1 in")))
sketch9.addConstraint(Sketcher.Constraint("DistanceX", -1, 1, 0, 2, Q("0.98 in")))
sketch9.addConstraint(Sketcher.Constraint("DistanceX", 5, 2, -1, 1, Q("0.97 in")))
sketch9.addConstraint(Sketcher.Constraint("DistanceX", 1, 1, 1, 2, 10.616682))
pocket6 = doc.addObject("PartDesign::Pocket", "Pocket005")
body.addObject(pocket6)
pocket6.Profile = sketch9
pocket6.Type = "ThroughAll"
pocket6.Reversed = True

sketch10 = doc.addObject("Sketcher::SketchObject", "Sketch009")
body.addObject(sketch10)
sketch10.AttachmentSupport = (doc.XZ_Plane, [""])
sketch10.MapMode = "FlatFace"
sketch10.AttachmentOffset = App.Placement(App.Vector(0, 0, 2.005 * 25.4), App.Rotation())
sketch10.addGeometry(Part.LineSegment(App.Vector(10.9, -2.5, 0), App.Vector(10.9, 0, 0)), False)
sketch10.addGeometry(Part.LineSegment(App.Vector(10.9, 0, 0), App.Vector(18, 0, 0)), False)
sketch10.addGeometry(Part.LineSegment(App.Vector(18, 0, 0), App.Vector(18, -2.5, 0)), False)
sketch10.addGeometry(Part.LineSegment(App.Vector(18, -2.5, 0), App.Vector(10.9, -2.5, 0)), False)
sketch10.addGeometry(Part.LineSegment(App.Vector(-3.3, -2.5, 0), App.Vector(-3.3, 0, 0)), False)
sketch10.addGeometry(Part.LineSegment(App.Vector(-3.3, 0, 0), App.Vector(3.8, 0, 0)), False)
sketch10.addGeometry(Part.LineSegment(App.Vector(3.8, 0, 0), App.Vector(3.8, -2.5, 0)), False)
sketch10.addGeometry(Part.LineSegment(App.Vector(3.8, -2.5, 0), App.Vector(-3.3, -2.5, 0)), False)
sketch10.addGeometry(Part.LineSegment(App.Vector(-17.5, -2.5, 0), App.Vector(-17.5, 0, 0)), False)
sketch10.addGeometry(Part.LineSegment(App.Vector(-17.5, 0, 0), App.Vector(-10.4, 0, 0)), False)
sketch10.addGeometry(Part.LineSegment(App.Vector(-10.4, 0, 0), App.Vector(-10.4, -2.5, 0)), False)
sketch10.addGeometry(Part.LineSegment(App.Vector(-10.4, -2.5, 0), App.Vector(-17.5, -2.5, 0)), False)
sketch10.addConstraint(Sketcher.Constraint("Coincident", 0, 2, 1, 1))
sketch10.addConstraint(Sketcher.Constraint("Coincident", 1, 2, 2, 1))
sketch10.addConstraint(Sketcher.Constraint("Coincident", 2, 2, 3, 1))
sketch10.addConstraint(Sketcher.Constraint("Coincident", 3, 2, 0, 1))
sketch10.addConstraint(Sketcher.Constraint("Coincident", 4, 2, 5, 1))
sketch10.addConstraint(Sketcher.Constraint("Coincident", 5, 2, 6, 1))
sketch10.addConstraint(Sketcher.Constraint("Coincident", 6, 2, 7, 1))
sketch10.addConstraint(Sketcher.Constraint("Coincident", 7, 2, 4, 1))
sketch10.addConstraint(Sketcher.Constraint("Coincident", 8, 2, 9, 1))
sketch10.addConstraint(Sketcher.Constraint("Coincident", 9, 2, 10, 1))
sketch10.addConstraint(Sketcher.Constraint("Coincident", 10, 2, 11, 1))
sketch10.addConstraint(Sketcher.Constraint("Coincident", 11, 2, 8, 1))
sketch10.addConstraint(Sketcher.Constraint("Vertical", 0))
sketch10.addConstraint(Sketcher.Constraint("Horizontal", 1))
sketch10.addConstraint(Sketcher.Constraint("Vertical", 2))
sketch10.addConstraint(Sketcher.Constraint("Horizontal", 3))
sketch10.addConstraint(Sketcher.Constraint("Vertical", 4))
sketch10.addConstraint(Sketcher.Constraint("Horizontal", 5))
sketch10.addConstraint(Sketcher.Constraint("Vertical", 6))
sketch10.addConstraint(Sketcher.Constraint("Horizontal", 7))
sketch10.addConstraint(Sketcher.Constraint("Vertical", 8))
sketch10.addConstraint(Sketcher.Constraint("Horizontal", 9))
sketch10.addConstraint(Sketcher.Constraint("Vertical", 10))
sketch10.addConstraint(Sketcher.Constraint("Horizontal", 11))
sketch10.addConstraint(Sketcher.Constraint("PointOnObject", 0, 2, -1))
sketch10.addConstraint(Sketcher.Constraint("PointOnObject", 4, 2, -1))
sketch10.addConstraint(Sketcher.Constraint("PointOnObject", 8, 2, -1))
sketch10.addConstraint(Sketcher.Constraint("Horizontal", 3, 2, 6, 2))
sketch10.addConstraint(Sketcher.Constraint("Horizontal", 7, 2, 10, 2))
sketch10.addConstraint(Sketcher.Constraint("Equal", 3, 5))
sketch10.addConstraint(Sketcher.Constraint("Equal", 7, 9))
sketch10.addConstraint(Sketcher.Constraint("DistanceY", 0, 1, 0, 2, Q("0.1 in")))
sketch10.addConstraint(Sketcher.Constraint("DistanceX", 1, 1, 1, 2, Q("0.28 in")))
sketch10.addConstraint(Sketcher.Constraint("DistanceX", -1, 1, 0, 2, Q("0.43 in")))
sketch10.addConstraint(Sketcher.Constraint("DistanceX", 4, 2, -1, 1, Q("0.13 in")))
sketch10.addConstraint(Sketcher.Constraint("DistanceX", 8, 2, -1, 1, Q("0.69 in")))
pocket7 = doc.addObject("PartDesign::Pocket", "Pocket006")
body.addObject(pocket7)
pocket7.Profile = sketch10
pocket7.Type = "ThroughAll"
pocket7.Reversed = True

doc.recompute()
